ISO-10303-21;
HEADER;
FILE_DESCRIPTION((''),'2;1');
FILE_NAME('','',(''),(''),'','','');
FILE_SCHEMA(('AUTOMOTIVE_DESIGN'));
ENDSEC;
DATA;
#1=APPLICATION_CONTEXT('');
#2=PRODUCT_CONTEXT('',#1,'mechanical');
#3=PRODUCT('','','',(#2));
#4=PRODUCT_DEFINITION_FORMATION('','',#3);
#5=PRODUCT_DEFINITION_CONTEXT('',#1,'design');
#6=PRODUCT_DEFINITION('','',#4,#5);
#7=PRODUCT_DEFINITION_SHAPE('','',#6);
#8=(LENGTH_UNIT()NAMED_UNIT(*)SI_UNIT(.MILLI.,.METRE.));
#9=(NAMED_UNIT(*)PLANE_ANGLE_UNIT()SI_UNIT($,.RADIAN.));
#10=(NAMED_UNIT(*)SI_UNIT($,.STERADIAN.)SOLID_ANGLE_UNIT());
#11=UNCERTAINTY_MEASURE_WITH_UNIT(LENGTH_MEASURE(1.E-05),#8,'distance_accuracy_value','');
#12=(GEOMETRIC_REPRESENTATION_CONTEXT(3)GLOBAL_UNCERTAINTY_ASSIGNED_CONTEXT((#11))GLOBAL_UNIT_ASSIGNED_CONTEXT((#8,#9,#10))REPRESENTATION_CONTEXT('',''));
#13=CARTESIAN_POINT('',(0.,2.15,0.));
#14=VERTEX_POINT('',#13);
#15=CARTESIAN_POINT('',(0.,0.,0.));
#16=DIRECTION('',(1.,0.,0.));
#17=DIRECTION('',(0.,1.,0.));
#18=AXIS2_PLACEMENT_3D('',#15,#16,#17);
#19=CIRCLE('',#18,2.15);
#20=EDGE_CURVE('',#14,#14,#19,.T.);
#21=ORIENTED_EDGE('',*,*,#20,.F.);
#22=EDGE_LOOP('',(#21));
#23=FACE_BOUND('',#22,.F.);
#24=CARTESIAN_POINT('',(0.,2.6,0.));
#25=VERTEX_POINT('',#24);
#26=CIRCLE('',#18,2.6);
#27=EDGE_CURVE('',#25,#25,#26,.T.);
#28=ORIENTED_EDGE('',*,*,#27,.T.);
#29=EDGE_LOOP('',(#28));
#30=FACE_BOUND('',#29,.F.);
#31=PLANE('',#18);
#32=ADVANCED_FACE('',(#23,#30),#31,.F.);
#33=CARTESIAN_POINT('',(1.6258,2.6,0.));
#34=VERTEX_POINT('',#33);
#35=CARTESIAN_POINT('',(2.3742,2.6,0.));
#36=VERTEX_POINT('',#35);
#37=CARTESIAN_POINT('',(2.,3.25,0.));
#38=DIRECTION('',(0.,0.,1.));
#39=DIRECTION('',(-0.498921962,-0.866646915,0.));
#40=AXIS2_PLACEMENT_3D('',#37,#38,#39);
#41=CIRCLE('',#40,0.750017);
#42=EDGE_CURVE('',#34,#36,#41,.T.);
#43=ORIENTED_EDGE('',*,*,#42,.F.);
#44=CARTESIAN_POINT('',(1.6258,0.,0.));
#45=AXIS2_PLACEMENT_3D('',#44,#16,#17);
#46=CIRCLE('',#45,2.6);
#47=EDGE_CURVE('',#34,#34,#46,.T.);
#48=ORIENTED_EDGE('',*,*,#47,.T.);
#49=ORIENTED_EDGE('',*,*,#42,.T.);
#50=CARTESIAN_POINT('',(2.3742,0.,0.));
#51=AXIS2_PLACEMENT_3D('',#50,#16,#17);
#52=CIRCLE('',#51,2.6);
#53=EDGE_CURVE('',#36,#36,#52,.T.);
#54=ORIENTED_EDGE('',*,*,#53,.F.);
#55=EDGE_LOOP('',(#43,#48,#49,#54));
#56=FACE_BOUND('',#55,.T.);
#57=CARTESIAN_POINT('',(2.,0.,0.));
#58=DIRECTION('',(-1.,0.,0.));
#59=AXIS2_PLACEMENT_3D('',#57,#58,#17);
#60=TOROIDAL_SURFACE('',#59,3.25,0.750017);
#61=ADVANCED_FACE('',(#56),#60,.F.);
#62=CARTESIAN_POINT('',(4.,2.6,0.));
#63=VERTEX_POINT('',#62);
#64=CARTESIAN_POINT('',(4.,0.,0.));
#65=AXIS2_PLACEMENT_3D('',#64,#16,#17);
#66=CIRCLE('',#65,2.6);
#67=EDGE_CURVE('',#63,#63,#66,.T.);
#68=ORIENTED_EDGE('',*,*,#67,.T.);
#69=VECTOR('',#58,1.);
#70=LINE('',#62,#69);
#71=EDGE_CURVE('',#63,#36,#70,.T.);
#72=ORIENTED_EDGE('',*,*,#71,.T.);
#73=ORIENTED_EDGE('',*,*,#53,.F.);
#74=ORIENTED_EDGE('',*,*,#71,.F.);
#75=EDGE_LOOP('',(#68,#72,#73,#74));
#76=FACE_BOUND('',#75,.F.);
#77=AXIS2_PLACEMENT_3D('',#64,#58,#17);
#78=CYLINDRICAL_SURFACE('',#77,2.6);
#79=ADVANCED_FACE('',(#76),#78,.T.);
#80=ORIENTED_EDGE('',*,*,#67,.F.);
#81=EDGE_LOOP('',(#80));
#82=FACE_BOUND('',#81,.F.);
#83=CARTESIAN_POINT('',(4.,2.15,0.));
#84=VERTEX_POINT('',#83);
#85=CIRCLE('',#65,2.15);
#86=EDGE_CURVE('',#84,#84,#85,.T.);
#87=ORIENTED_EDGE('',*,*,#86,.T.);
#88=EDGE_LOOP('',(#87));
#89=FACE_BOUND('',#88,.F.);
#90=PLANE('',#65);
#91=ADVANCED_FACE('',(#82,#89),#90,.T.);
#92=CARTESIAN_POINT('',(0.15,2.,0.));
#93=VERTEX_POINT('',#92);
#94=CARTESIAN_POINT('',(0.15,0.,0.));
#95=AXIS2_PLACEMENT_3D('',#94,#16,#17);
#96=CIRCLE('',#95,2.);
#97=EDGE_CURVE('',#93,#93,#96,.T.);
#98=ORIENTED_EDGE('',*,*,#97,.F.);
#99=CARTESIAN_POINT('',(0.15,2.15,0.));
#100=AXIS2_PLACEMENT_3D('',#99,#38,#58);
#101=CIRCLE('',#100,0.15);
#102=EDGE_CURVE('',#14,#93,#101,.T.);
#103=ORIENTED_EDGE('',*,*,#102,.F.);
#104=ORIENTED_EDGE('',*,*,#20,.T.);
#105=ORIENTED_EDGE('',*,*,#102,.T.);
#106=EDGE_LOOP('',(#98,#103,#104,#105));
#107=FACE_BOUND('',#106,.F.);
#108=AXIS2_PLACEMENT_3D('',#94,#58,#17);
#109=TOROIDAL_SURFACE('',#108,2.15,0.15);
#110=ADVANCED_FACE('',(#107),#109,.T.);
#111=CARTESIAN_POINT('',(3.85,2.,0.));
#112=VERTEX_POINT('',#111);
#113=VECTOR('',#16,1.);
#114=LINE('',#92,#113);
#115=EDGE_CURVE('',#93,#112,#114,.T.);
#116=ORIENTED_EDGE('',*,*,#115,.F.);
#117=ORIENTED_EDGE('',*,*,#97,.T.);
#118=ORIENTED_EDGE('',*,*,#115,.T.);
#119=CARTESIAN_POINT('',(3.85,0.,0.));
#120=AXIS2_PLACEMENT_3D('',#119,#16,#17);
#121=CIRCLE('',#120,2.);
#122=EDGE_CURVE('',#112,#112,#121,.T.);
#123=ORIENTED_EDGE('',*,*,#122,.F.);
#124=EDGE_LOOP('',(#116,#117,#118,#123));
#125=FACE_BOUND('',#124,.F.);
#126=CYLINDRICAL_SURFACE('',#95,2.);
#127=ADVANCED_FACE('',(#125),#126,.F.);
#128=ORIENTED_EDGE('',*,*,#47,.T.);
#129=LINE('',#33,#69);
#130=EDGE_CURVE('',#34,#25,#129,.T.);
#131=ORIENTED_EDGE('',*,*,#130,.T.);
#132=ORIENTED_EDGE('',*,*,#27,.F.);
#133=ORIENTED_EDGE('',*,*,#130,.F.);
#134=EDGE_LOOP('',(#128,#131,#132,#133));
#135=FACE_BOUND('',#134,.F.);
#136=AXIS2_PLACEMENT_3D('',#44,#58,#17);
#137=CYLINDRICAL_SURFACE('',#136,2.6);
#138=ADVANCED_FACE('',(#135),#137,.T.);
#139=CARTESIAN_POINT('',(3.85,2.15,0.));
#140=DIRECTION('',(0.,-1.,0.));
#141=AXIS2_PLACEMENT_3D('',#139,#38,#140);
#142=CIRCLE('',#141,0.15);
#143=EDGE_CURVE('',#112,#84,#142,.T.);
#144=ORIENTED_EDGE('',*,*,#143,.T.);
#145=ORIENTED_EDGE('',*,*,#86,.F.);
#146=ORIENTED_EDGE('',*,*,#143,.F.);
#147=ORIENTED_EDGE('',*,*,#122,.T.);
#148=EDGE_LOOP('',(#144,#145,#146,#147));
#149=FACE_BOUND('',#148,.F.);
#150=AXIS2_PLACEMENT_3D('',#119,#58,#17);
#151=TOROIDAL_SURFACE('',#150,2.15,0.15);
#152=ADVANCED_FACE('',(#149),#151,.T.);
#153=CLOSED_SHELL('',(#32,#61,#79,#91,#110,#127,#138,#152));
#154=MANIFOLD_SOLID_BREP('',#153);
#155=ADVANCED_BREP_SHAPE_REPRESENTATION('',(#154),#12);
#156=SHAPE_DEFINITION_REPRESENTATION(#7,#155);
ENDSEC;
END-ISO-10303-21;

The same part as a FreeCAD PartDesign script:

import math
import FreeCAD as App
import Part
import Sketcher
Q = App.Units.Quantity

doc = App.newDocument("Part")
body = doc.addObject("PartDesign::Body", "Body")

sketch1 = body.newObject("Sketcher::SketchObject", "Sketch")
sketch1.AttachmentSupport = (doc.getObject("XY_Plane"), [""])
sketch1.MapMode = "FlatFace"
sketch1.addGeometry(Part.LineSegment(App.Vector(0, 2.6, 0), App.Vector(0, 2.15, 0)), False)
sketch1.addGeometry(Part.ArcOfCircle(Part.Circle(App.Vector(0.15, 2.15, 0), App.Vector(0, 0, 1), 0.15), math.radians(180), math.radians(270)), False)
sketch1.addGeometry(Part.LineSegment(App.Vector(0.15, 2, 0), App.Vector(3.85, 2, 0)), False)
sketch1.addGeometry(Part.ArcOfCircle(Part.Circle(App.Vector(3.85, 2.15, 0), App.Vector(0, 0, 1), 0.15), math.radians(-90), math.radians(0)), False)
sketch1.addGeometry(Part.LineSegment(App.Vector(4, 2.15, 0), App.Vector(4, 2.6, 0)), False)
sketch1.addGeometry(Part.LineSegment(App.Vector(4, 2.6, 0), App.Vector(2.3742, 2.6, 0)), False)
sketch1.addGeometry(Part.ArcOfCircle(Part.Circle(App.Vector(2, 3.25, 0), App.Vector(0, 0, 1), 0.750017), math.radians(-119.928703), math.radians(-60.071297)), False)
sketch1.addGeometry(Part.LineSegment(App.Vector(1.6258, 2.6, 0), App.Vector(0, 2.6, 0)), False)
sketch1.addConstraint(Sketcher.Constraint("Tangent", 0, 2, 1, 1))
sketch1.addConstraint(Sketcher.Constraint("Tangent", 1, 2, 2, 1))
sketch1.addConstraint(Sketcher.Constraint("Tangent", 2, 2, 3, 1))
sketch1.addConstraint(Sketcher.Constraint("Tangent", 3, 2, 4, 1))
sketch1.addConstraint(Sketcher.Constraint("Coincident", 4, 2, 5, 1))
sketch1.addConstraint(Sketcher.Constraint("Coincident", 5, 2, 6, 2))
sketch1.addConstraint(Sketcher.Constraint("Coincident", 6, 1, 7, 1))
sketch1.addConstraint(Sketcher.Constraint("Coincident", 7, 2, 0, 1))
sketch1.addConstraint(Sketcher.Constraint("Vertical", 0))
sketch1.addConstraint(Sketcher.Constraint("Horizontal", 2))
sketch1.addConstraint(Sketcher.Constraint("Vertical", 4))
sketch1.addConstraint(Sketcher.Constraint("Horizontal", 5))
sketch1.addConstraint(Sketcher.Constraint("Horizontal", 7))
sketch1.addConstraint(Sketcher.Constraint("Equal", 1, 3))
sketch1.addConstraint(Sketcher.Constraint("PointOnObject", 0, 2, -2))
sketch1.addConstraint(Sketcher.Constraint("Horizontal", 5, 2, 6, 1))
sketch1.addConstraint(Sketcher.Constraint("Equal", 5, 7))
sketch1.addConstraint(Sketcher.Constraint("Radius", 1, Q("0.15 mm")))
sketch1.addConstraint(Sketcher.Constraint("Radius", 6, Q("0.75 mm")))
sketch1.addConstraint(Sketcher.Constraint("DistanceX", 2, 1, 2, 2, Q("3.7 mm")))
sketch1.addConstraint(Sketcher.Constraint("DistanceY", -1, 1, 1, 2, Q("2 mm")))
sketch1.addConstraint(Sketcher.Constraint("DistanceY", 0, 2, 0, 1, Q("0.45 mm")))
sketch1.addConstraint(Sketcher.Constraint("DistanceY", 1, 3, 6, 3, Q("1.1 mm")))
revolution = body.newObject("PartDesign::Revolution", "Revolution")
revolution.Profile = sketch1
revolution.ReferenceAxis = (sketch1, ["H_Axis"])
revolution.Angle = 360

doc.recompute()
